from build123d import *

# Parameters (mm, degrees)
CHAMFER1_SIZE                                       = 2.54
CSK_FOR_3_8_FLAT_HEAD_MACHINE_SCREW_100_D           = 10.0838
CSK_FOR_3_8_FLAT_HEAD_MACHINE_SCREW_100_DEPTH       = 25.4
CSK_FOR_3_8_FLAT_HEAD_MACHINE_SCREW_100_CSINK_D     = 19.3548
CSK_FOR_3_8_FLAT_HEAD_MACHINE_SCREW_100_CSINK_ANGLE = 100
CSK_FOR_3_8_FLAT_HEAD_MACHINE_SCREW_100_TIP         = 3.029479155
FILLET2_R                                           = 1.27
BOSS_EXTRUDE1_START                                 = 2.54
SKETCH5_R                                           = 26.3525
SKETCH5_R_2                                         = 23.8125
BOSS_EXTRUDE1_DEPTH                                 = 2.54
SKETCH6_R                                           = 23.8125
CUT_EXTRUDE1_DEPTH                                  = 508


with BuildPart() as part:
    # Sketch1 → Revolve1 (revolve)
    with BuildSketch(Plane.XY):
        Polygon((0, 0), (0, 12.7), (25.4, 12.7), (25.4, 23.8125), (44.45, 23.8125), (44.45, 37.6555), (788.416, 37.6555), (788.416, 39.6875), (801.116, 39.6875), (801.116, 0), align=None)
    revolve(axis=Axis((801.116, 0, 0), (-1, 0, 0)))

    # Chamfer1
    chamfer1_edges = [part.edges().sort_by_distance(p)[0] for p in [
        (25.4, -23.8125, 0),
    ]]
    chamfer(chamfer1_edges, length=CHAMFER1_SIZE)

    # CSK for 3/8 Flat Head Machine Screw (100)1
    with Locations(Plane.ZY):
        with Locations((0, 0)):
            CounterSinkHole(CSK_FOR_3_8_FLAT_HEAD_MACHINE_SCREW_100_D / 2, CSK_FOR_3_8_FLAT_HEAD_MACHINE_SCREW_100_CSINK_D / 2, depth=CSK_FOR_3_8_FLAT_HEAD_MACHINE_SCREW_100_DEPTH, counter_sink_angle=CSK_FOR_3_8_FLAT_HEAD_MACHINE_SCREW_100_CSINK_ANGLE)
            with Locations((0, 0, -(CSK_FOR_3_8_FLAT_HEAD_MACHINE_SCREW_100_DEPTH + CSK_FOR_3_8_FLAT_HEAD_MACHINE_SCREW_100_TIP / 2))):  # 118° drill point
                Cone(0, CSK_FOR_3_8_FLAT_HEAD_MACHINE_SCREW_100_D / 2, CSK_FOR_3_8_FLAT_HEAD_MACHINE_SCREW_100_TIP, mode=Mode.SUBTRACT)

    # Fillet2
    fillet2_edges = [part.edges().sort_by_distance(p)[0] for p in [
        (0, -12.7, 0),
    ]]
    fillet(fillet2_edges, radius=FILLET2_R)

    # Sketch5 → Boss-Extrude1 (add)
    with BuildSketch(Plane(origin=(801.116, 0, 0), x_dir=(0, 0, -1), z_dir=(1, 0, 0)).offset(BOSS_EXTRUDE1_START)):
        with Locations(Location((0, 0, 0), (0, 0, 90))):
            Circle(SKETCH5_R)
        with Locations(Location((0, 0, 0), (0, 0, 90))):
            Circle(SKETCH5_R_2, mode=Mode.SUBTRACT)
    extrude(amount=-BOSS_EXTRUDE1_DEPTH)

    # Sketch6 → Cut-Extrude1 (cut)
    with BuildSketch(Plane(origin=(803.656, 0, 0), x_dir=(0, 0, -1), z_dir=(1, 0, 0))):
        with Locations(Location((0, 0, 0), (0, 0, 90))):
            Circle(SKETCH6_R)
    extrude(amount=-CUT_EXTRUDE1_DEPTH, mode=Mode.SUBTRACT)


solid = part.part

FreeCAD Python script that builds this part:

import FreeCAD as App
import Part
import Sketcher
from FreeCAD import Vector
Q = App.Units.Quantity


def edges_at(feature, points):
    """Names of the edges that pass closest to the given points."""
    edges = feature.Shape.Edges
    near = lambda p: min(range(len(edges)), key=lambda i: edges[i].distToShape(Part.Vertex(*p))[0])
    return sorted({f"Edge{near(p) + 1}" for p in points})


def add_polygon(sketch, points):
    """Adds a closed chain of lines whose ends are joined by coincident constraints."""
    first, n = sketch.GeometryCount, len(points)
    for a, b in zip(points, points[1:] + points[:1]):
        sketch.addGeometry(Part.LineSegment(App.Vector(*a, 0), App.Vector(*b, 0)), False)
    for i in range(n):
        sketch.addConstraint(Sketcher.Constraint("Coincident", first + i, 2, first + (i + 1) % n, 1))

doc = App.newDocument("Part")
body = doc.addObject("PartDesign::Body", "Body")

# Sketch on XY plane
sketch1 = doc.addObject("Sketcher::SketchObject", "Sketch")
body.addObject(sketch1)
sketch1.AttachmentSupport = (doc.XY_Plane, [""])
sketch1.MapMode = "FlatFace"
add_polygon(sketch1, [(0, 12.7), (0, 0), (801.1, 0), (801.1, 39.7), (788.4, 39.7), (788.4, 37.7), (44.5, 37.7), (44.5, 23.8), (25.4, 23.8), (25.4, 12.7)])  # lines 0-9
sketch1.addConstraint([
    Sketcher.Constraint("Vertical", 0),
    Sketcher.Constraint("Horizontal", 1),
    Sketcher.Constraint("Vertical", 2),
    Sketcher.Constraint("Horizontal", 3),
    Sketcher.Constraint("Vertical", 4),
    Sketcher.Constraint("Horizontal", 5),
    Sketcher.Constraint("Vertical", 6),
    Sketcher.Constraint("Horizontal", 7),
    Sketcher.Constraint("Vertical", 8),
    Sketcher.Constraint("Horizontal", 9),
    Sketcher.Constraint("Coincident", 0, 2, -1, 1),
    Sketcher.Constraint("Equal", 3, 0),
    Sketcher.Constraint("DistanceX", 9, 2, 9, 1, Q("1 in")),
    Sketcher.Constraint("DistanceX", 3, 2, 3, 1, Q("0.5 in")),
    Sketcher.Constraint("DistanceX", 1, 1, 1, 2, Q("31.54 in")),
    Sketcher.Constraint("DistanceX", 5, 2, 5, 1, Q("29.29 in")),
    Sketcher.Constraint("DistanceY", 4, 2, 4, 1, Q("0.08 in")),
    Sketcher.Constraint("DistanceY", 2, 1, 2, 2, Q("1.5625 in")),
    Sketcher.Constraint("DistanceY", 6, 2, 6, 1, Q("0.545 in")),
])
revolution = doc.addObject("PartDesign::Revolution", "Revolution")
body.addObject(revolution)
revolution.Profile = sketch1
revolution.ReferenceAxis = (sketch1, ["H_Axis"])
revolution.Angle = 360
doc.recompute()

chamfer = doc.addObject("PartDesign::Chamfer", "Chamfer")
body.addObject(chamfer)
chamfer.Base = (revolution, edges_at(revolution, [(25.4, -23.812, 0)]))
chamfer.Size = Q("0.1 in")

# Sketch on YZ plane
sketch2 = doc.addObject("Sketcher::SketchObject", "Sketch001")
body.addObject(sketch2)
sketch2.AttachmentSupport = (doc.YZ_Plane, [""])
sketch2.MapMode = "FlatFace"
sketch2.addGeometry(Part.Circle(Vector(0, 0, 0), Vector(0, 0, 1), 5), False)
sketch2.addConstraint([
    Sketcher.Constraint("Coincident", 0, 3, -1, 1),
    Sketcher.Constraint("Diameter", 0, Q("0.397 in")),
])
doc.recompute()
hole = doc.addObject("PartDesign::Hole", "Hole")
body.addObject(hole)
hole.Profile = sketch2
hole.ThreadType = "None"
hole.Diameter = Q("0.397 in")
hole.DepthType = "Dimension"
hole.Depth = Q("1 in")
hole.DrillPoint = "Angled"
hole.DrillPointAngle = 118
hole.HoleCutType = "Countersink"
hole.HoleCutDiameter = Q("0.762 in")
hole.HoleCutCountersinkAngle = 100
hole.Reversed = True
doc.recompute()

fillet = doc.addObject("PartDesign::Fillet", "Fillet")
body.addObject(fillet)
fillet.Base = (hole, edges_at(hole, [(0, -12.7, 0)]))
fillet.Radius = Q("0.05 in")

# Sketch on YZ plane
sketch3 = doc.addObject("Sketcher::SketchObject", "Sketch002")
body.addObject(sketch3)
sketch3.AttachmentSupport = (doc.YZ_Plane, [""])
sketch3.MapMode = "FlatFace"
sketch3.AttachmentOffset = App.Placement(Vector(0, 0, 31.64 * 25.4), App.Rotation())
sketch3.addGeometry([
    Part.Circle(Vector(0, 0, 0), Vector(0, 0, 1), 26),
    Part.Circle(Vector(0, 0, 0), Vector(0, 0, 1), 24),
], False)
sketch3.addConstraint([
    Sketcher.Constraint("Coincident", 0, 3, -1, 1),
    Sketcher.Constraint("Coincident", 1, 3, -1, 1),
    Sketcher.Constraint("Diameter", 0, Q("2.075 in")),
    Sketcher.Constraint("Diameter", 1, Q("1.875 in")),
])
pad1 = doc.addObject("PartDesign::Pad", "Pad")
body.addObject(pad1)
pad1.Profile = sketch3
pad1.Length = Q("0.1 in")
pad1.Reversed = True

# Sketch on YZ plane
sketch4 = doc.addObject("Sketcher::SketchObject", "Sketch003")
body.addObject(sketch4)
sketch4.AttachmentSupport = (doc.YZ_Plane, [""])
sketch4.MapMode = "FlatFace"
sketch4.AttachmentOffset = App.Placement(Vector(0, 0, 31.64 * 25.4), App.Rotation())
sketch4.addGeometry(Part.Circle(Vector(0, 0, 0), Vector(0, 0, 1), 24), False)
sketch4.addConstraint([
    Sketcher.Constraint("Coincident", 0, 3, -1, 1),
    Sketcher.Constraint("Diameter", 0, Q("1.875 in")),
])
pocket1 = doc.addObject("PartDesign::Pocket", "Pocket")
body.addObject(pocket1)
pocket1.Profile = sketch4
pocket1.Length = Q("20 in")

doc.recompute()
